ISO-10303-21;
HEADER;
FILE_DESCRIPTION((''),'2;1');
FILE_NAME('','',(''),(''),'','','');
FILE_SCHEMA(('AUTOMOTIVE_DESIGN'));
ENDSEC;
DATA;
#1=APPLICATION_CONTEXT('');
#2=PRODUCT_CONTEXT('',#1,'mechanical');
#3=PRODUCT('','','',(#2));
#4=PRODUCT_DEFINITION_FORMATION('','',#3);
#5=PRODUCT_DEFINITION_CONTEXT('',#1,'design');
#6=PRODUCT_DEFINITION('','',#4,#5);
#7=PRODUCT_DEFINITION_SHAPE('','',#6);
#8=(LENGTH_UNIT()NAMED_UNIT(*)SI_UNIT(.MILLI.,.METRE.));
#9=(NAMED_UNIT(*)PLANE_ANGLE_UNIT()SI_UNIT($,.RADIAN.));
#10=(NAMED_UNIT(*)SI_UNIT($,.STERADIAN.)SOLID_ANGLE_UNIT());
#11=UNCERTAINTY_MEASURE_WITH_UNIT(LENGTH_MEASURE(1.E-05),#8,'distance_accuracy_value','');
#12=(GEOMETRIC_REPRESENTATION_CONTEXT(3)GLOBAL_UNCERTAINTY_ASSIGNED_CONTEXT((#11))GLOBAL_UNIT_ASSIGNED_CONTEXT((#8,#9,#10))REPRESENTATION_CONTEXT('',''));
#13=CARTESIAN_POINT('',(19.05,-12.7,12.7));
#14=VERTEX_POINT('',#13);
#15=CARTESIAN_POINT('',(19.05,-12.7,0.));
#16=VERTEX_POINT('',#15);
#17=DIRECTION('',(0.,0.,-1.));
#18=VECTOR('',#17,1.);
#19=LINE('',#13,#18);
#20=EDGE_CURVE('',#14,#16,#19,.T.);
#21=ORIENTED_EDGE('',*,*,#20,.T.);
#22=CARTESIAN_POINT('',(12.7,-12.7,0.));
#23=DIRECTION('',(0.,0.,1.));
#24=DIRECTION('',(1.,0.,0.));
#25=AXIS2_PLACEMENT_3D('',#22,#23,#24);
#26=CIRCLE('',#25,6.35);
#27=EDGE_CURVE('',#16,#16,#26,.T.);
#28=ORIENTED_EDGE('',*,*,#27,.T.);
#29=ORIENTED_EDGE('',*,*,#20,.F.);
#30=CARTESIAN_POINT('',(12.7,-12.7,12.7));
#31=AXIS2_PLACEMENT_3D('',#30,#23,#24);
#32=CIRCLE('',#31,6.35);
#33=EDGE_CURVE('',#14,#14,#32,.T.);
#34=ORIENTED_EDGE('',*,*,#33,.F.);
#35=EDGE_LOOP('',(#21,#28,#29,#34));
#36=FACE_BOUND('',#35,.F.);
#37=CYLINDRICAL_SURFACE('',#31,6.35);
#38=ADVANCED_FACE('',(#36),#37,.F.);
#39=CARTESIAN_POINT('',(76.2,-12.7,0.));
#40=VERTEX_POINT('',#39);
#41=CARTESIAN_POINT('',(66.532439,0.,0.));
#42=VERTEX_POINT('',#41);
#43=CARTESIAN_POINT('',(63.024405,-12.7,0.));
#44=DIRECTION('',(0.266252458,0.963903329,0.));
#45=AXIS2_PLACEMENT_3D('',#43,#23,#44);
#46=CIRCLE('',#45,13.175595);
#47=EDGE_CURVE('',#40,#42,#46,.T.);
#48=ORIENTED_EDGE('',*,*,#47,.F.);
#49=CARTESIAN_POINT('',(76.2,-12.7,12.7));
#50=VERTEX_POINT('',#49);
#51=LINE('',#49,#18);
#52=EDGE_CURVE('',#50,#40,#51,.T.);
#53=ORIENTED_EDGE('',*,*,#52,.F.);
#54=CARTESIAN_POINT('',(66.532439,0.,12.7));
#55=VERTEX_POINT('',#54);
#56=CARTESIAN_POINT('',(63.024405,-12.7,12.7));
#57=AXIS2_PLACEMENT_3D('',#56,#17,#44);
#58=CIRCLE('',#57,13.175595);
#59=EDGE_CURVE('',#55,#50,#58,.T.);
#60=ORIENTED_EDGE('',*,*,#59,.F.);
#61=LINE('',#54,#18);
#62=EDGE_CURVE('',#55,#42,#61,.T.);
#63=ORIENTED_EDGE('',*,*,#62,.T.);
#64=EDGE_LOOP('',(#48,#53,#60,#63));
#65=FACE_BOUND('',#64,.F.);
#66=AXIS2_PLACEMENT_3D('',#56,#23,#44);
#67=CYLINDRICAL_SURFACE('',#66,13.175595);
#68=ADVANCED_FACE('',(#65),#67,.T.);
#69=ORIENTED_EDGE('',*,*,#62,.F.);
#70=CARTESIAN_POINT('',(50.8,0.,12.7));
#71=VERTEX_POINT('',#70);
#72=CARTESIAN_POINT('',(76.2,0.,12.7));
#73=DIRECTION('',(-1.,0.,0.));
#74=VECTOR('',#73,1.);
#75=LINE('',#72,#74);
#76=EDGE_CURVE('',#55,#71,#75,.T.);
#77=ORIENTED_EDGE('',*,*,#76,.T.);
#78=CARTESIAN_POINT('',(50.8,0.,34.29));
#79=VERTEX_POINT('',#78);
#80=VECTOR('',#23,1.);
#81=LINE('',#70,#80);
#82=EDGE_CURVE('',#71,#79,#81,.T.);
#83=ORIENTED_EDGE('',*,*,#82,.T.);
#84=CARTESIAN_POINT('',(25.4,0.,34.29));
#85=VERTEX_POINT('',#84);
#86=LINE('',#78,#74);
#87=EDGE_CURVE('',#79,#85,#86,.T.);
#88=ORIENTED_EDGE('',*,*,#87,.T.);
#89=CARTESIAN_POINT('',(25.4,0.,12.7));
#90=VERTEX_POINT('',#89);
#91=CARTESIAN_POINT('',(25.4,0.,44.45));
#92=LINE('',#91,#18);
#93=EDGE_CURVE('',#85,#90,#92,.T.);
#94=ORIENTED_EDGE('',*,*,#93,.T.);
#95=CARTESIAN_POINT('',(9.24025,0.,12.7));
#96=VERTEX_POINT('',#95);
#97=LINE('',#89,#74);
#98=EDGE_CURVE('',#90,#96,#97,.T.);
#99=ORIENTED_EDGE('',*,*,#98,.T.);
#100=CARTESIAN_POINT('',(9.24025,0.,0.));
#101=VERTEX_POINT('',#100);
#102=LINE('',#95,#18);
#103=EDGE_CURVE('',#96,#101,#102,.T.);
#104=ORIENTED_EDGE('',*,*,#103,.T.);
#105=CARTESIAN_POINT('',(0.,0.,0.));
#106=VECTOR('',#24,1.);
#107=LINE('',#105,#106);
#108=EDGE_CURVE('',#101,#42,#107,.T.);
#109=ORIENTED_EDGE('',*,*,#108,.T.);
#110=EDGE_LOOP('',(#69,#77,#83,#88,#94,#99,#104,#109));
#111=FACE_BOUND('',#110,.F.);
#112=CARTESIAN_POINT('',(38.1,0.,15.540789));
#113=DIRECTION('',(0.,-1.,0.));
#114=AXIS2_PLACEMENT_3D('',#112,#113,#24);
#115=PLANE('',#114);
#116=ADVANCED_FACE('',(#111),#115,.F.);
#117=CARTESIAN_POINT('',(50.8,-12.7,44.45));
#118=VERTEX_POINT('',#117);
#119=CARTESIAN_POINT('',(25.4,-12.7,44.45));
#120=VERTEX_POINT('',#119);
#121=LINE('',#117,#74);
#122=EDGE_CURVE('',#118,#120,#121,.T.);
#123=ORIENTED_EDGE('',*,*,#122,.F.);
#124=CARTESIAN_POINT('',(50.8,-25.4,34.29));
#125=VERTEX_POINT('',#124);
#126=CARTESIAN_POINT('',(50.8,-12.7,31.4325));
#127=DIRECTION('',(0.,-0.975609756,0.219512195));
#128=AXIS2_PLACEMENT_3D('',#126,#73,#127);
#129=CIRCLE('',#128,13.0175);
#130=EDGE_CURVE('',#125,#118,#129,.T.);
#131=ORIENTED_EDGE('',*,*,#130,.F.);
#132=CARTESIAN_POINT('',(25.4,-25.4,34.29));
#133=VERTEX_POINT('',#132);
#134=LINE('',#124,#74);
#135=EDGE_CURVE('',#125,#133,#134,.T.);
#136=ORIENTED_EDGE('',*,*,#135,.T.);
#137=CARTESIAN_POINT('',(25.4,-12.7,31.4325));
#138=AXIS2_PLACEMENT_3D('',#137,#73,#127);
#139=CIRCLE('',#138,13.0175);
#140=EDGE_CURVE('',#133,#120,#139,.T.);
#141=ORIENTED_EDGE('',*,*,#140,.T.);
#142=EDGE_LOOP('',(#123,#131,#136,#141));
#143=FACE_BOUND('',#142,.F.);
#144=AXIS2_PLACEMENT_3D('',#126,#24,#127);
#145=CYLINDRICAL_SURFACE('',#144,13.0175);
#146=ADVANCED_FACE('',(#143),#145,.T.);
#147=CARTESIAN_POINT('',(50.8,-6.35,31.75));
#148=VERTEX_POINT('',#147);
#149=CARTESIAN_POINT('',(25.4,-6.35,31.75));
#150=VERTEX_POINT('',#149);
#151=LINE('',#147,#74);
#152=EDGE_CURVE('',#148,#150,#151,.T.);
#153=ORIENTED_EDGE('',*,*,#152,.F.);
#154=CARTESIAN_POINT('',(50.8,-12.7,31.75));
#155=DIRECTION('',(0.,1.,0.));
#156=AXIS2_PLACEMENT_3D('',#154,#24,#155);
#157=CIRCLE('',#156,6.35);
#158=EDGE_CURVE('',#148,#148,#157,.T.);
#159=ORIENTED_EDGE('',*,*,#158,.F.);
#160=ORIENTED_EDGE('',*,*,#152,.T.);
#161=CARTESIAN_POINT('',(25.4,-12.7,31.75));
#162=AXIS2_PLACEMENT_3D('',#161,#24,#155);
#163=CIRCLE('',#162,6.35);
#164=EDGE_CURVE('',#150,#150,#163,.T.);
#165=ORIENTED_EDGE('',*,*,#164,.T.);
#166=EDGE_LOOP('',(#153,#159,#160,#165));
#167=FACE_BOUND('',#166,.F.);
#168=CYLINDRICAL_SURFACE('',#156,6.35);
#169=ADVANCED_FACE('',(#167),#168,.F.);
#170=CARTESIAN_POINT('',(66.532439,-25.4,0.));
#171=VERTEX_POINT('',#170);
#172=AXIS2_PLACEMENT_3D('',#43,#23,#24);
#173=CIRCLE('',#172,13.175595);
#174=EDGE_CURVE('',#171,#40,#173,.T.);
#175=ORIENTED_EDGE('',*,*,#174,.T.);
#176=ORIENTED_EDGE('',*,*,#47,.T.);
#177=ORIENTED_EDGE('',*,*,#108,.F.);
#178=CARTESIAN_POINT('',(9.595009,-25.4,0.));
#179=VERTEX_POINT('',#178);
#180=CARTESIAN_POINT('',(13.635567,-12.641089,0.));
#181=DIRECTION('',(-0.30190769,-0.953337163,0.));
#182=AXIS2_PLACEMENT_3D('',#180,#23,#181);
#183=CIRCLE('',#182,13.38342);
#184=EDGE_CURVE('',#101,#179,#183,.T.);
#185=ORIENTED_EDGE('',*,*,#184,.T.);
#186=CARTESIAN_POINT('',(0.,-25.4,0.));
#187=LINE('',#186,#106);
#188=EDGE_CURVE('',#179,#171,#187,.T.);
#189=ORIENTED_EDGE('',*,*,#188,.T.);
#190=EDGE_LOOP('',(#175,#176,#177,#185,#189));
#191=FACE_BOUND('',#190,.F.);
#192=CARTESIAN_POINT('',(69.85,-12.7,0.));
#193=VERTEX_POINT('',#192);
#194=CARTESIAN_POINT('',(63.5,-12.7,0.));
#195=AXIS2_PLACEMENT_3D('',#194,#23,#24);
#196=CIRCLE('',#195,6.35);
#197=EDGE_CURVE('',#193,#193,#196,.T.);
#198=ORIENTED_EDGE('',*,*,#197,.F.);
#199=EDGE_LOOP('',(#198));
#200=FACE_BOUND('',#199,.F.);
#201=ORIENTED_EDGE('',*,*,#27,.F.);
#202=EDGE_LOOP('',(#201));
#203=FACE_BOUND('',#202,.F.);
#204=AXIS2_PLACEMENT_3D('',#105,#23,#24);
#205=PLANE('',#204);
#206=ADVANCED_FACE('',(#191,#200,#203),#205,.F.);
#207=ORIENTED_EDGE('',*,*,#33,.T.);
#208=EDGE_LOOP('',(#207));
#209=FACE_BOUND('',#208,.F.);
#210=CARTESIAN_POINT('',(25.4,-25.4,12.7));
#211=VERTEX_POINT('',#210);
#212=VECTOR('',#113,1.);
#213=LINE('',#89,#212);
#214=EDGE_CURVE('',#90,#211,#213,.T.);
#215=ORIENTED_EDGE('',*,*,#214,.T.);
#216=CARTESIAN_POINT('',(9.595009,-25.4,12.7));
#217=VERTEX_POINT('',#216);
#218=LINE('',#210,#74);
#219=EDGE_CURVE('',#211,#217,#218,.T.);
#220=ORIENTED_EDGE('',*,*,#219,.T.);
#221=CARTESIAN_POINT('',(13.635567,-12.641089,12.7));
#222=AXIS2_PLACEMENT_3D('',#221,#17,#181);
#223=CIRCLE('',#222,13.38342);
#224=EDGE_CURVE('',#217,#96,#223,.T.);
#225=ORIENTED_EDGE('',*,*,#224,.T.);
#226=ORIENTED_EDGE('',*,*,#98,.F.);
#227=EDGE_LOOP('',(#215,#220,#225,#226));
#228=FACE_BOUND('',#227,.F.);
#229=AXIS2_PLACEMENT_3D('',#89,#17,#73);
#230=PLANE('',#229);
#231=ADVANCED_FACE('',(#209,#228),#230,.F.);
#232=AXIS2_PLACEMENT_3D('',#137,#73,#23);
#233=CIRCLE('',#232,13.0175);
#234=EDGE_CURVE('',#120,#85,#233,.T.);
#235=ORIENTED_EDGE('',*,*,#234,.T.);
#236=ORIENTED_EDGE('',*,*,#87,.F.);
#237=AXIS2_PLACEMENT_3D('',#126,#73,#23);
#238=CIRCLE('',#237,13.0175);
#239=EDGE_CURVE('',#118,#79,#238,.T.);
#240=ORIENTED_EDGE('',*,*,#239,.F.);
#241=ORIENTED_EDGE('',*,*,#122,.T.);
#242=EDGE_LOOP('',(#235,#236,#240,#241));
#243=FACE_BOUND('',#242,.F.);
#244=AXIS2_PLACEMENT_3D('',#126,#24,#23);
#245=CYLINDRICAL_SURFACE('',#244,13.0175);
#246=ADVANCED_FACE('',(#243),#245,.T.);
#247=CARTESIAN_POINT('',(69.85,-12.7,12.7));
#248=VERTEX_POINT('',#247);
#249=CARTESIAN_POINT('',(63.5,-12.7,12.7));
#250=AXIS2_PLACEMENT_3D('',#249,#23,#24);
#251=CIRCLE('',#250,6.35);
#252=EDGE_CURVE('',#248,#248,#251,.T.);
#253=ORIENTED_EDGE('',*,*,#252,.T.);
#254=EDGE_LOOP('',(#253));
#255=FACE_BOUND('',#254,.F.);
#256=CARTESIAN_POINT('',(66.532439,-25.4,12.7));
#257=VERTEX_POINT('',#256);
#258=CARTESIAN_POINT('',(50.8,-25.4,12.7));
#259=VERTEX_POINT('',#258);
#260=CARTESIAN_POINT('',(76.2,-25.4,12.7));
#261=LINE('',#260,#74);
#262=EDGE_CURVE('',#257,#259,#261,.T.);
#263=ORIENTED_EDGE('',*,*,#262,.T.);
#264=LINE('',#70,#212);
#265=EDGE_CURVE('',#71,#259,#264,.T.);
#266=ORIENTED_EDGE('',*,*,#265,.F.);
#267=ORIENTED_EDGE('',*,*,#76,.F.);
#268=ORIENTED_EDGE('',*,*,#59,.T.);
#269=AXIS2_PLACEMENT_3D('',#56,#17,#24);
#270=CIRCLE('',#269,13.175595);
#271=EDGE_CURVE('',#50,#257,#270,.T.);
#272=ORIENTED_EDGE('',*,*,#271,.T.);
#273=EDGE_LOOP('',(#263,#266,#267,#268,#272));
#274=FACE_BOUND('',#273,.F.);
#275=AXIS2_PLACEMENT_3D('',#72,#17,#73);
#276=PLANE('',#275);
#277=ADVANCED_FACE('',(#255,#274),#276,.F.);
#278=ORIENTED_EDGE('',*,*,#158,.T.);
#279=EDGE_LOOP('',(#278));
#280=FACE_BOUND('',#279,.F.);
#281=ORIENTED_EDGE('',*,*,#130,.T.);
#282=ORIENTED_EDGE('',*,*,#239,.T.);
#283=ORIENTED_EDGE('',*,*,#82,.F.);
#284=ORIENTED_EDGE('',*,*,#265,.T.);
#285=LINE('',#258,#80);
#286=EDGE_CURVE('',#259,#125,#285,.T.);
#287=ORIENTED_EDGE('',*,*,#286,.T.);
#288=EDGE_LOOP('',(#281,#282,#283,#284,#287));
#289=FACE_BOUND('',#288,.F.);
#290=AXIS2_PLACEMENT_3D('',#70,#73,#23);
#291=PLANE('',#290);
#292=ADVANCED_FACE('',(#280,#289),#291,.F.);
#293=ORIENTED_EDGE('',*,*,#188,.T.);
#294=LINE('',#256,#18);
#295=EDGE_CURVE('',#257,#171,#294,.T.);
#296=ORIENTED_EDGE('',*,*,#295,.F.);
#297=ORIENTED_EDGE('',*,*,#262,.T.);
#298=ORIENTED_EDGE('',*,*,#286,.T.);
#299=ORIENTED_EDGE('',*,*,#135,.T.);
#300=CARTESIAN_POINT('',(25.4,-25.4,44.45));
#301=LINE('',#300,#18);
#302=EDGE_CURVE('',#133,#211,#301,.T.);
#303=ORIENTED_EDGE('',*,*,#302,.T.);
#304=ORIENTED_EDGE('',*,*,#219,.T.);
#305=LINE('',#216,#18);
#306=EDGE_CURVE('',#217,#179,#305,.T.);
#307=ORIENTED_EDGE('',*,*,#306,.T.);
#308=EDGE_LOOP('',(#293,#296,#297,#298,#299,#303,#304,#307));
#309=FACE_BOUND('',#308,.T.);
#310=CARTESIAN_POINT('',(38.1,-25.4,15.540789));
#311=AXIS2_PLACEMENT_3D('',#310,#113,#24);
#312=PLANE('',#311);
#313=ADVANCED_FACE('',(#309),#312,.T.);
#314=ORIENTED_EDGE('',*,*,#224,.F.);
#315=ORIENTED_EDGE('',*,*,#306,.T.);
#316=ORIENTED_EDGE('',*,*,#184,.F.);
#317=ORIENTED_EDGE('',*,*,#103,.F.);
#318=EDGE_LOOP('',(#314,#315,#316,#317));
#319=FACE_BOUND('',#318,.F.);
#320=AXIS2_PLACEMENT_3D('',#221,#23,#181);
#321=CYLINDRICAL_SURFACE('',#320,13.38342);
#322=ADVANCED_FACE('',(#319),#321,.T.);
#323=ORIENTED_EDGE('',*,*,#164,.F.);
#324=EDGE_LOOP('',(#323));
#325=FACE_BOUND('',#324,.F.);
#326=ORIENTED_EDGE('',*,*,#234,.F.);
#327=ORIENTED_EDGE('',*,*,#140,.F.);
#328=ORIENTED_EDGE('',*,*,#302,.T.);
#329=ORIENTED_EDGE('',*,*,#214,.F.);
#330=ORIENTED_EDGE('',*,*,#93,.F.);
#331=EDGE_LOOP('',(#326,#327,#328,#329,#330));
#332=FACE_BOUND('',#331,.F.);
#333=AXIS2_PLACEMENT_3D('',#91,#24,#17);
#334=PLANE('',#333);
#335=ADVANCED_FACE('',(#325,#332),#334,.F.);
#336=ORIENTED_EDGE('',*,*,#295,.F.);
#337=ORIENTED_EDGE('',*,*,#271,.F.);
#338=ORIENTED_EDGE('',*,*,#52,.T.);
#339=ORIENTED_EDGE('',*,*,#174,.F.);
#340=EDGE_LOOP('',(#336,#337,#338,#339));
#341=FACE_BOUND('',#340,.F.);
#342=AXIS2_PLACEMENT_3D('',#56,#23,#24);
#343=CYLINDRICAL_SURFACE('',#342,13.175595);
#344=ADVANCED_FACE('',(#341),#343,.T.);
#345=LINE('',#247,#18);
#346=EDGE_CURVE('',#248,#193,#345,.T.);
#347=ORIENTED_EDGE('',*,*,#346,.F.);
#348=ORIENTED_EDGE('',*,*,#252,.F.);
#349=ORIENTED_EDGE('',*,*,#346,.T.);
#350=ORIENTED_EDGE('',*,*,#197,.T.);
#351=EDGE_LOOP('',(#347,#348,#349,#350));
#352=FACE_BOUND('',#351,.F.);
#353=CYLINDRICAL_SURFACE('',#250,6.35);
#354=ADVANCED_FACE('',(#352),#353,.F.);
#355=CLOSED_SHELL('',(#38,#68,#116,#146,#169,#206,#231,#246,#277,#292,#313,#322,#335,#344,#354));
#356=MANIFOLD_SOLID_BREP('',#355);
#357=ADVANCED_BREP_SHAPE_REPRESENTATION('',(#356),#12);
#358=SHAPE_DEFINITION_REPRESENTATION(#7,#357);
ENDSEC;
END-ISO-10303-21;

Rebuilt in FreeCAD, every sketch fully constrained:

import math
import FreeCAD as App
import Part
import Sketcher
Q = App.Units.Quantity


def add_polygon(sketch, points):
    """Adds a closed chain of lines whose ends are joined by coincident constraints."""
    first, n = sketch.GeometryCount, len(points)
    for a, b in zip(points, points[1:] + points[:1]):
        sketch.addGeometry(Part.LineSegment(App.Vector(*a, 0), App.Vector(*b, 0)), False)
    for i in range(n):
        sketch.addConstraint(Sketcher.Constraint("Coincident", first + i, 2, first + (i + 1) % n, 1))

doc = App.newDocument("Part")
body = doc.addObject("PartDesign::Body", "Body")

# Sketch on XZ plane
sketch1 = body.newObject("Sketcher::SketchObject", "Sketch")
sketch1.AttachmentSupport = (doc.getObject("XZ_Plane"), [""])
sketch1.MapMode = "FlatFace"
add_polygon(sketch1, [(0, 13), (0, 0), (76, 0), (76, 13), (51, 13), (51, 44), (25, 44), (25, 13)])  # lines 0-7
sketch1.addConstraint([
    Sketcher.Constraint("Vertical", 0),
    Sketcher.Constraint("Horizontal", 1),
    Sketcher.Constraint("Vertical", 2),
    Sketcher.Constraint("Horizontal", 3),
    Sketcher.Constraint("Vertical", 4),
    Sketcher.Constraint("Horizontal", 5),
    Sketcher.Constraint("Vertical", 6),
    Sketcher.Constraint("Horizontal", 7),
    Sketcher.Constraint("Coincident", 0, 2, -1, 1),
    Sketcher.Constraint("Horizontal", 3, 2, 6, 2),
    Sketcher.Constraint("Equal", 3, 5),
    Sketcher.Constraint("Equal", 5, 7),
    Sketcher.Constraint("DistanceX", 1, 1, 1, 2, Q("3 in")),
    Sketcher.Constraint("DistanceY", 0, 2, 0, 1, Q("0.5 in")),
    Sketcher.Constraint("DistanceY", 4, 1, 4, 2, Q("1.25 in")),
])
pad1 = body.newObject("PartDesign::Pad", "Pad")
pad1.Profile = sketch1
pad1.Length = Q("1 in")

# Sketch on YZ plane
sketch2 = body.newObject("Sketcher::SketchObject", "Sketch001")
sketch2.AttachmentSupport = (doc.getObject("YZ_Plane"), [""])
sketch2.MapMode = "FlatFace"
sketch2.AttachmentOffset = App.Placement(App.Vector(0, 0, 2 * 25.4), App.Rotation())
sketch2.addGeometry(Part.Circle(App.Vector(-13, 32, 0), App.Vector(0, 0, 1), 6), False)
sketch2.addConstraint([
    Sketcher.Constraint("Diameter", 0, Q("0.5 in")),
    Sketcher.Constraint("DistanceX", 0, 3, -1, 1, Q("0.5 in")),
    Sketcher.Constraint("DistanceY", -1, 1, 0, 3, Q("1.25 in")),
])
pocket1 = body.newObject("PartDesign::Pocket", "Pocket")
pocket1.Profile = sketch2
pocket1.Length = Q("1 in")

# Sketch on YZ plane
sketch3 = body.newObject("Sketcher::SketchObject", "Sketch002")
sketch3.AttachmentSupport = (doc.getObject("YZ_Plane"), [""])
sketch3.MapMode = "FlatFace"
sketch3.AttachmentOffset = App.Placement(App.Vector(0, 0, 2 * 25.4), App.Rotation())
sketch3.addGeometry([
    Part.ArcOfCircle(Part.Circle(App.Vector(-13, 31, 0), App.Vector(0, 0, 1), 13), math.radians(90), math.radians(167)),  # 0
    Part.LineSegment(App.Vector(-13, 44, 0), App.Vector(-25, 44, 0)),  # 1
    Part.LineSegment(App.Vector(-25, 44, 0), App.Vector(-25, 34, 0)),  # 2
    Part.ArcOfCircle(Part.Circle(App.Vector(-13, 31, 0), App.Vector(0, 0, 1), 13), math.radians(13), math.radians(90)),  # 3
    Part.LineSegment(App.Vector(0, 34, 0), App.Vector(0, 44, 0)),  # 4
    Part.LineSegment(App.Vector(0, 44, 0), App.Vector(-13, 44, 0)),  # 5
], False)
sketch3.addConstraint([
    Sketcher.Constraint("Tangent", 0, 1, 1, 1),
    Sketcher.Constraint("Coincident", 1, 2, 2, 1),
    Sketcher.Constraint("Coincident", 2, 2, 0, 2),
    Sketcher.Constraint("Coincident", 3, 1, 4, 1),
    Sketcher.Constraint("Coincident", 4, 2, 5, 1),
    Sketcher.Constraint("Tangent", 5, 2, 3, 2),
    Sketcher.Constraint("Horizontal", 1),
    Sketcher.Constraint("Vertical", 2),
    Sketcher.Constraint("Vertical", 4),
    Sketcher.Constraint("Horizontal", 5),
    Sketcher.Constraint("Coincident", 3, 3, 0, 3),
    Sketcher.Constraint("Equal", 0, 3),
    Sketcher.Constraint("PointOnObject", 3, 1, -2),
    Sketcher.Constraint("Horizontal", 2, 2, 3, 1),
    Sketcher.Constraint("DistanceX", 1, 2, 1, 1, Q("0.5 in")),
    Sketcher.Constraint("DistanceY", 2, 2, 2, 1, Q("0.4 in")),
    Sketcher.Constraint("DistanceY", -1, 1, 0, 1, Q("1.75 in")),
])
pocket2 = body.newObject("PartDesign::Pocket", "Pocket001")
pocket2.Profile = sketch3
pocket2.Length = Q("1 in")

# Sketch on XY plane
sketch4 = body.newObject("Sketcher::SketchObject", "Sketch003")
sketch4.AttachmentSupport = (doc.getObject("XY_Plane"), [""])
sketch4.MapMode = "FlatFace"
sketch4.AttachmentOffset = App.Placement(App.Vector(0, 0, 0.5 * 25.4), App.Rotation())
sketch4.addGeometry(Part.Circle(App.Vector(64, -13, 0), App.Vector(0, 0, 1), 6), False)
sketch4.addConstraint([
    Sketcher.Constraint("Diameter", 0, Q("0.5 in")),
    Sketcher.Constraint("DistanceX", -1, 1, 0, 3, Q("2.5 in")),
    Sketcher.Constraint("DistanceY", 0, 3, -1, 1, Q("0.5 in")),
])
pocket3 = body.newObject("PartDesign::Pocket", "Pocket002")
pocket3.Profile = sketch4
pocket3.Length = Q("1 in")

# Sketch on XY plane
sketch5 = body.newObject("Sketcher::SketchObject", "Sketch004")
sketch5.AttachmentSupport = (doc.getObject("XY_Plane"), [""])
sketch5.MapMode = "FlatFace"
sketch5.AttachmentOffset = App.Placement(App.Vector(0, 0, 0.5 * 25.4), App.Rotation())
sketch5.addGeometry(Part.Circle(App.Vector(13, -13, 0), App.Vector(0, 0, 1), 6), False)
sketch5.addConstraint([
    Sketcher.Constraint("Diameter", 0, Q("0.5 in")),
    Sketcher.Constraint("DistanceX", -1, 1, 0, 3, Q("0.5 in")),
    Sketcher.Constraint("DistanceY", 0, 3, -1, 1, Q("0.5 in")),
])
pocket4 = body.newObject("PartDesign::Pocket", "Pocket003")
pocket4.Profile = sketch5
pocket4.Length = Q("1 in")

# Sketch on XY plane
sketch6 = body.newObject("Sketcher::SketchObject", "Sketch005")
sketch6.AttachmentSupport = (doc.getObject("XY_Plane"), [""])
sketch6.MapMode = "FlatFace"
sketch6.AttachmentOffset = App.Placement(App.Vector(0, 0, 0.5 * 25.4), App.Rotation())
sketch6.addGeometry([
    Part.ArcOfCircle(Part.Circle(App.Vector(63, -13, 0), App.Vector(0, 0, 1), 13), math.radians(0), math.radians(75)),  # 0
    Part.LineSegment(App.Vector(76, -13, 0), App.Vector(76, 0, 0)),  # 1
    Part.LineSegment(App.Vector(76, 0, 0), App.Vector(67, 0, 0)),  # 2
    Part.ArcOfCircle(Part.Circle(App.Vector(63, -13, 0), App.Vector(0, 0, 1), 13), math.radians(-75), math.radians(0)),  # 3
    Part.LineSegment(App.Vector(67, -25, 0), App.Vector(76, -25, 0)),  # 4
    Part.LineSegment(App.Vector(76, -25, 0), App.Vector(76, -13, 0)),  # 5
], False)
sketch6.addConstraint([
    Sketcher.Constraint("Tangent", 0, 1, 1, 1),
    Sketcher.Constraint("Coincident", 1, 2, 2, 1),
    Sketcher.Constraint("Coincident", 2, 2, 0, 2),
    Sketcher.Constraint("Coincident", 3, 1, 4, 1),
    Sketcher.Constraint("Coincident", 4, 2, 5, 1),
    Sketcher.Constraint("Tangent", 5, 2, 3, 2),
    Sketcher.Constraint("Vertical", 1),
    Sketcher.Constraint("Horizontal", 2),
    Sketcher.Constraint("Horizontal", 4),
    Sketcher.Constraint("Vertical", 5),
    Sketcher.Constraint("Coincident", 3, 3, 0, 3),
    Sketcher.Constraint("Equal", 0, 3),
    Sketcher.Constraint("PointOnObject", 1, 2, -1),
    Sketcher.Constraint("Vertical", 2, 2, 3, 1),
    Sketcher.Constraint("DistanceY", 1, 1, 1, 2, Q("0.5 in")),
    Sketcher.Constraint("DistanceX", -1, 1, 0, 1, Q("3 in")),
    Sketcher.Constraint("Radius", 0, Q("13.175595 mm")),
])
pocket5 = body.newObject("PartDesign::Pocket", "Pocket004")
pocket5.Profile = sketch6
pocket5.Length = Q("1 in")

# Sketch on XY plane
sketch7 = body.newObject("Sketcher::SketchObject", "Sketch006")
sketch7.AttachmentSupport = (doc.getObject("XY_Plane"), [""])
sketch7.MapMode = "FlatFace"
sketch7.AttachmentOffset = App.Placement(App.Vector(0, 0, 0.5 * 25.4), App.Rotation())
sketch7.addGeometry([
    Part.ArcOfCircle(Part.Circle(App.Vector(14, -13, 0), App.Vector(0, 0, 1), 13), math.radians(109), math.radians(252)),
    Part.LineSegment(App.Vector(9, 0, 0), App.Vector(0, 0, 0)),
    Part.LineSegment(App.Vector(0, 0, 0), App.Vector(0, -25, 0)),
    Part.LineSegment(App.Vector(0, -25, 0), App.Vector(10, -25, 0)),
], False)
sketch7.addConstraint([
    Sketcher.Constraint("Coincident", 0, 1, 1, 1),
    Sketcher.Constraint("Coincident", 1, 2, 2, 1),
    Sketcher.Constraint("Coincident", 2, 2, 3, 1),
    Sketcher.Constraint("Coincident", 3, 2, 0, 2),
    Sketcher.Constraint("Horizontal", 1),
    Sketcher.Constraint("Vertical", 2),
    Sketcher.Constraint("Horizontal", 3),
    Sketcher.Constraint("Coincident", 1, 2, -1, 1),
    Sketcher.Constraint("DistanceY", 2, 2, 2, 1, Q("1 in")),
    Sketcher.Constraint("Radius", 0, Q("13.38342 mm")),
    Sketcher.Constraint("DistanceX", 1, 2, 1, 1, Q("9.24025 mm")),
    Sketcher.Constraint("DistanceX", 3, 1, 3, 2, Q("9.595009 mm")),
])
pocket6 = body.newObject("PartDesign::Pocket", "Pocket005")
pocket6.Profile = sketch7
pocket6.Length = Q("1 in")

doc.recompute()
